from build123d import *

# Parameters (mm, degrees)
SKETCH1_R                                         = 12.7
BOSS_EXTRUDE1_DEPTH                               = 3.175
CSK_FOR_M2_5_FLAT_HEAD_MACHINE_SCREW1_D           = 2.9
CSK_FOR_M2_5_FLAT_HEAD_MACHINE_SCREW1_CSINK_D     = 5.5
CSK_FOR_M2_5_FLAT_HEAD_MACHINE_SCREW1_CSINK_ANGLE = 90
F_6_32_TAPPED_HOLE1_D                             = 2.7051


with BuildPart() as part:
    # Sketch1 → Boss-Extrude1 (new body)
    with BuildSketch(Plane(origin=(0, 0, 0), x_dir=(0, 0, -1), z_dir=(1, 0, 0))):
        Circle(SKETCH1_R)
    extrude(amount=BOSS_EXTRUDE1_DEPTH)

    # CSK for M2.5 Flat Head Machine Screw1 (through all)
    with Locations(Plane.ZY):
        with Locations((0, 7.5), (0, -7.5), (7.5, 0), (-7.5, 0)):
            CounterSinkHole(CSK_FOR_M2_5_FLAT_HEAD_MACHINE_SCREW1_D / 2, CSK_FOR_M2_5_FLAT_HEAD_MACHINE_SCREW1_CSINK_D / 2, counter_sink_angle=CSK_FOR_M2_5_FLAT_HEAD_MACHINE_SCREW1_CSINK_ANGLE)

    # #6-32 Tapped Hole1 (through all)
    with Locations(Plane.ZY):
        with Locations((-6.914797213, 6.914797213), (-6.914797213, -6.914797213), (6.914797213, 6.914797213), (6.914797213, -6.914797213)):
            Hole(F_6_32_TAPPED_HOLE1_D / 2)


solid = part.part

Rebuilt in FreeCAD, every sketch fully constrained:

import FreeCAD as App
import Part
import Sketcher
from FreeCAD import Vector
Q = App.Units.Quantity

doc = App.newDocument("Part")
params = doc.addObject("Spreadsheet::Sheet", "Params")
for row, (alias, value) in enumerate([
    ("sketch1_diameter", "1 in"),
    ("pad1_length", "0.125 in"),
    ("hole_diameter", "2.9 mm"),
    ("hole_csink_diameter", "5.5 mm"),
    ("hole2_diameter", "0.1065 in"),
], start=1):
    params.set(f"A{row}", alias)
    params.set(f"B{row}", "=" + value)
    params.setAlias(f"B{row}", alias)

body = doc.addObject("PartDesign::Body", "Body")

# Sketch on YZ plane
sketch1 = doc.addObject("Sketcher::SketchObject", "Sketch")
body.addObject(sketch1)
sketch1.AttachmentSupport = (doc.YZ_Plane, [""])
sketch1.MapMode = "FlatFace"
sketch1.addGeometry(Part.Circle(Vector(0, 0, 0), Vector(0, 0, 1), 12.7), False)
sketch1.addConstraint([
    Sketcher.Constraint("Coincident", 0, 3, -1, 1),
    Sketcher.Constraint("Diameter", 0, Q("1 in")),
])
sketch1.setExpression("Constraints[1]", "Params.sketch1_diameter")
pad1 = doc.addObject("PartDesign::Pad", "Pad")
body.addObject(pad1)
pad1.Profile = sketch1
pad1.setExpression("Length", "Params.pad1_length")

# Sketch on YZ plane
sketch2 = doc.addObject("Sketcher::SketchObject", "Sketch001")
body.addObject(sketch2)
sketch2.AttachmentSupport = (doc.YZ_Plane, [""])
sketch2.MapMode = "FlatFace"
sketch2.addGeometry([
    Part.Circle(Vector(7.5, 0, 0), Vector(0, 0, 1), 1.45),
    Part.Circle(Vector(-7.5, 0, 0), Vector(0, 0, 1), 1.45),
    Part.Circle(Vector(0, 7.5, 0), Vector(0, 0, 1), 1.45),
    Part.Circle(Vector(0, -7.5, 0), Vector(0, 0, 1), 1.45),
], False)
sketch2.addConstraint([
    Sketcher.Constraint("Equal", 0, 1),
    Sketcher.Constraint("Equal", 1, 2),
    Sketcher.Constraint("Equal", 2, 3),
    Sketcher.Constraint("Symmetric", 0, 3, 1, 3, -1, 1),
    Sketcher.Constraint("Symmetric", 2, 3, 3, 3, -1, 1),
    Sketcher.Constraint("PointOnObject", 0, 3, -1),
    Sketcher.Constraint("PointOnObject", 2, 3, -2),
    Sketcher.Constraint("Diameter", 0, 2.9),
    Sketcher.Constraint("DistanceX", -1, 1, 0, 3, 7.5),
    Sketcher.Constraint("DistanceY", -1, 1, 2, 3, 7.5),
])
doc.recompute()
hole = doc.addObject("PartDesign::Hole", "Hole")
body.addObject(hole)
hole.Profile = sketch2
hole.ThreadType = "None"
hole.setExpression("Diameter", "Params.hole_diameter")
hole.DepthType = "ThroughAll"
hole.HoleCutType = "Countersink"
hole.setExpression("HoleCutDiameter", "Params.hole_csink_diameter")
hole.HoleCutCountersinkAngle = 90
hole.Reversed = True

# Sketch on YZ plane
sketch3 = doc.addObject("Sketcher::SketchObject", "Sketch002")
body.addObject(sketch3)
sketch3.AttachmentSupport = (doc.YZ_Plane, [""])
sketch3.MapMode = "FlatFace"
sketch3.addGeometry([
    Part.Circle(Vector(6.914797, -6.914797, 0), Vector(0, 0, 1), 1.35255),
    Part.Circle(Vector(-6.914797, -6.914797, 0), Vector(0, 0, 1), 1.35255),
    Part.Circle(Vector(6.914797, 6.914797, 0), Vector(0, 0, 1), 1.35255),
    Part.Circle(Vector(-6.914797, 6.914797, 0), Vector(0, 0, 1), 1.35255),
], False)
sketch3.addConstraint([
    Sketcher.Constraint("Equal", 0, 1),
    Sketcher.Constraint("Equal", 1, 2),
    Sketcher.Constraint("Equal", 2, 3),
    Sketcher.Constraint("Symmetric", 1, 3, 2, 3, -1, 1),
    Sketcher.Constraint("Symmetric", 0, 3, 3, 3, -1, 1),
    Sketcher.Constraint("Symmetric", 0, 3, 1, 3, -2),
    Sketcher.Constraint("Diameter", 0, Q("0.1065 in")),
    Sketcher.Constraint("DistanceX", -1, 1, 0, 3, 6.914797),
    Sketcher.Constraint("DistanceY", 0, 3, -1, 1, 6.914797),
])
doc.recompute()
hole2 = doc.addObject("PartDesign::Hole", "Hole001")
body.addObject(hole2)
hole2.Profile = sketch3
hole2.ThreadType = "None"
hole2.setExpression("Diameter", "Params.hole2_diameter")
hole2.DepthType = "ThroughAll"
hole2.Reversed = True

doc.recompute()
